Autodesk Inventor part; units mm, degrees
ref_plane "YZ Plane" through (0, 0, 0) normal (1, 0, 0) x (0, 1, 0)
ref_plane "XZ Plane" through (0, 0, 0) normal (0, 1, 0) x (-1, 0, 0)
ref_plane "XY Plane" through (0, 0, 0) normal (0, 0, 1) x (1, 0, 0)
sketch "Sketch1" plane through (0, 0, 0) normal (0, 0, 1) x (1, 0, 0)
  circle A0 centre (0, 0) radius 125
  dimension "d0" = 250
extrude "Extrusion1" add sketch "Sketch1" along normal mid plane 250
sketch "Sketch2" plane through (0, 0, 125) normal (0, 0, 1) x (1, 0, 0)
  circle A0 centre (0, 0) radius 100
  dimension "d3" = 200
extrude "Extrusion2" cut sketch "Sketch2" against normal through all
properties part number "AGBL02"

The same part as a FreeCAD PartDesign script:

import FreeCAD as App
import Part
import Sketcher
from FreeCAD import Vector

doc = App.newDocument("Part")
body = doc.addObject("PartDesign::Body", "Body")

sketch1 = body.newObject("Sketcher::SketchObject", "Sketch")
sketch1.AttachmentSupport = (doc.getObject("XY_Plane"), [""])
sketch1.MapMode = "FlatFace"
sketch1.addGeometry(Part.Circle(Vector(0, 0, 0), Vector(0, 0, 1), 125), False)
sketch1.addConstraint([
    Sketcher.Constraint("Coincident", 0, 3, -1, 1),
    Sketcher.Constraint("Diameter", 0, 250.0),
])
pad1 = body.newObject("PartDesign::Pad", "Pad")
pad1.Profile = sketch1
pad1.Length = 250
pad1.Midplane = True

sketch2 = body.newObject("Sketcher::SketchObject", "Sketch001")
sketch2.AttachmentSupport = (doc.getObject("XY_Plane"), [""])
sketch2.MapMode = "FlatFace"
sketch2.AttachmentOffset = App.Placement(Vector(0, 0, 125), App.Rotation())
sketch2.addGeometry(Part.Circle(Vector(0, 0, 0), Vector(0, 0, 1), 100), False)
sketch2.addConstraint([
    Sketcher.Constraint("Coincident", 0, 3, -1, 1),
    Sketcher.Constraint("Diameter", 0, 200.0),
])
pocket1 = body.newObject("PartDesign::Pocket", "Pocket")
pocket1.Profile = sketch2
pocket1.Type = "ThroughAll"

doc.recompute()
